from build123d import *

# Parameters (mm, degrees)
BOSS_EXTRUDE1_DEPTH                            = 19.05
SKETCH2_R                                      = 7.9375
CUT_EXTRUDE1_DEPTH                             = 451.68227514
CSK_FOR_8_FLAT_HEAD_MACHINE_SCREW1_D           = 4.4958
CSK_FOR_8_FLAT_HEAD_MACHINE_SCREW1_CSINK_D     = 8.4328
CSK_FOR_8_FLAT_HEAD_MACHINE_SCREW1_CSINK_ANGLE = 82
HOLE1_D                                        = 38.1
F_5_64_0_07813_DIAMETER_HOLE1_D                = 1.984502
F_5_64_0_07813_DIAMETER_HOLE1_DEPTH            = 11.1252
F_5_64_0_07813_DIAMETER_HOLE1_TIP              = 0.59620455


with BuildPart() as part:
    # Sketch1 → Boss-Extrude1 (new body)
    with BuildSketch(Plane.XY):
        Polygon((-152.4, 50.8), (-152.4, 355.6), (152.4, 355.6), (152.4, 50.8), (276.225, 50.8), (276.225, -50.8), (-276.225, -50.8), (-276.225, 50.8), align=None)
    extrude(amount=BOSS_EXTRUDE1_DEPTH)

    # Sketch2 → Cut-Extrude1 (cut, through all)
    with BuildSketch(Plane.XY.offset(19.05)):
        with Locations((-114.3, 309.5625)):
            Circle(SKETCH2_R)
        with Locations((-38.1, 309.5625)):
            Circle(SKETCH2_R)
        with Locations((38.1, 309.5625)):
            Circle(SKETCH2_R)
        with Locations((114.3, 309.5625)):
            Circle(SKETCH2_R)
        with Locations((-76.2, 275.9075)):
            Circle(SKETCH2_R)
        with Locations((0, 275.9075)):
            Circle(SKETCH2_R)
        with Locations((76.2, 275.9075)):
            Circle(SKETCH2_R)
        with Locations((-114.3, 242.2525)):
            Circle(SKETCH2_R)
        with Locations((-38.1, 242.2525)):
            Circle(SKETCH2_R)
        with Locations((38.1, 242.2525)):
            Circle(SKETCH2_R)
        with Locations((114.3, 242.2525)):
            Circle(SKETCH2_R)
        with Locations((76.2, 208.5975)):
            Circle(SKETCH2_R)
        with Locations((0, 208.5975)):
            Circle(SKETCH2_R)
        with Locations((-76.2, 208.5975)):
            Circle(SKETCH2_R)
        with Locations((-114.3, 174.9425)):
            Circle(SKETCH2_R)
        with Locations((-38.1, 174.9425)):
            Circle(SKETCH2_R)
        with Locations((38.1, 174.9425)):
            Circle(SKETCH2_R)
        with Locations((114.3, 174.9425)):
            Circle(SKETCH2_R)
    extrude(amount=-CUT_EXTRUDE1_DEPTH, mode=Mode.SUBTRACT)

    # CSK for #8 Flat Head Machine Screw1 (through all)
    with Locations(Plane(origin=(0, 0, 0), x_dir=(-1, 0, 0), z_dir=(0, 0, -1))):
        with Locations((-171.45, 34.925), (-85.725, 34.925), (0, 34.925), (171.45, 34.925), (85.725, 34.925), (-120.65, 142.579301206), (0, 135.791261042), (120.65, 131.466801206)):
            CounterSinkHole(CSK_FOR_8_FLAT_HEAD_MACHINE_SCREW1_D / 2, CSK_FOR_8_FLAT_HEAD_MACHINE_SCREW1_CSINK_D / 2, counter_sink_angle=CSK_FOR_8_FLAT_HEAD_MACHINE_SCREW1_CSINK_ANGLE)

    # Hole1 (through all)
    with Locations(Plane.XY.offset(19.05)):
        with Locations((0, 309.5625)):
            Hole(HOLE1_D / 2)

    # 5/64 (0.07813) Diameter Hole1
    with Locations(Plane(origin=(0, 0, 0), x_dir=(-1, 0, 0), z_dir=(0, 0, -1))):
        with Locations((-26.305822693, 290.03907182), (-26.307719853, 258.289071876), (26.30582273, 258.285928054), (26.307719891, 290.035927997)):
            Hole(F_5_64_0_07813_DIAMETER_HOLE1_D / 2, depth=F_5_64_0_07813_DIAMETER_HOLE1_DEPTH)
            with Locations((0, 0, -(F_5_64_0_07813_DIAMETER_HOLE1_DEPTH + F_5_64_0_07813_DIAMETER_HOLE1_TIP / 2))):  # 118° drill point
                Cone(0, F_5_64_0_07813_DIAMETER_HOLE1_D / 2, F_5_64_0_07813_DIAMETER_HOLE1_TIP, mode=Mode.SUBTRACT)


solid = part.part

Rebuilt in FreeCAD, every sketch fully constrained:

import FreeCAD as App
import Part
import Sketcher

V = App.Vector
Q = App.Units.Quantity

doc = App.newDocument("Part")
body = doc.addObject("PartDesign::Body", "Body")

# Sketch on XY plane
sketch1 = body.newObject("Sketcher::SketchObject", "Sketch")
sketch1.AttachmentSupport = (doc.getObject("XY_Plane"), [""])
sketch1.MapMode = "FlatFace"
sketch1.addGeometry([
    Part.LineSegment(V(-152, 356, 0), V(-152, 51, 0)),  # 0
    Part.LineSegment(V(-152, 51, 0), V(-276, 51, 0)),  # 1
    Part.LineSegment(V(-276, 51, 0), V(-276, -51, 0)),  # 2
    Part.LineSegment(V(-276, -51, 0), V(276, -51, 0)),  # 3
    Part.LineSegment(V(276, -51, 0), V(276, 51, 0)),  # 4
    Part.LineSegment(V(276, 51, 0), V(152, 51, 0)),  # 5
    Part.LineSegment(V(152, 51, 0), V(152, 356, 0)),  # 6
    Part.LineSegment(V(152, 356, 0), V(-152, 356, 0)),  # 7
], False)
sketch1.addConstraint([
    Sketcher.Constraint("Coincident", 0, 2, 1, 1),
    Sketcher.Constraint("Coincident", 1, 2, 2, 1),
    Sketcher.Constraint("Coincident", 2, 2, 3, 1),
    Sketcher.Constraint("Coincident", 3, 2, 4, 1),
    Sketcher.Constraint("Coincident", 4, 2, 5, 1),
    Sketcher.Constraint("Coincident", 5, 2, 6, 1),
    Sketcher.Constraint("Coincident", 6, 2, 7, 1),
    Sketcher.Constraint("Coincident", 7, 2, 0, 1),
    Sketcher.Constraint("Vertical", 0),
    Sketcher.Constraint("Horizontal", 1),
    Sketcher.Constraint("Vertical", 2),
    Sketcher.Constraint("Horizontal", 3),
    Sketcher.Constraint("Vertical", 4),
    Sketcher.Constraint("Horizontal", 5),
    Sketcher.Constraint("Vertical", 6),
    Sketcher.Constraint("Horizontal", 7),
    Sketcher.Constraint("Symmetric", 1, 2, 3, 2, -1, 1),
    Sketcher.Constraint("Symmetric", 0, 2, 5, 2, -2),
    Sketcher.Constraint("Equal", 7, 0),
    Sketcher.Constraint("DistanceX", 7, 2, 7, 1, Q("12 in")),
    Sketcher.Constraint("DistanceY", 2, 2, 2, 1, Q("4 in")),
    Sketcher.Constraint("DistanceX", 3, 1, 3, 2, Q("21.75 in")),
])
pad1 = body.newObject("PartDesign::Pad", "Pad")
pad1.Profile = sketch1
pad1.Length = Q("0.75 in")

# Sketch on XY plane
sketch2 = body.newObject("Sketcher::SketchObject", "Sketch001")
sketch2.AttachmentSupport = (doc.getObject("XY_Plane"), [""])
sketch2.MapMode = "FlatFace"
sketch2.AttachmentOffset = App.Placement(V(0, 0, 0.75 * 25.4), App.Rotation())
sketch2.addGeometry([
    Part.Circle(V(-114, 310, 0), V(0, 0, 1), 8),  # 0
    Part.Circle(V(-38, 310, 0), V(0, 0, 1), 8),  # 1
    Part.Circle(V(38, 310, 0), V(0, 0, 1), 8),  # 2
    Part.Circle(V(114, 310, 0), V(0, 0, 1), 8),  # 3
    Part.Circle(V(-76, 276, 0), V(0, 0, 1), 8),  # 4
    Part.Circle(V(0, 276, 0), V(0, 0, 1), 8),  # 5
    Part.Circle(V(76, 276, 0), V(0, 0, 1), 8),  # 6
    Part.Circle(V(-114, 242, 0), V(0, 0, 1), 8),  # 7
    Part.Circle(V(-38, 242, 0), V(0, 0, 1), 8),  # 8
    Part.Circle(V(38, 242, 0), V(0, 0, 1), 8),  # 9
    Part.Circle(V(114, 242, 0), V(0, 0, 1), 8),  # 10
    Part.Circle(V(76, 209, 0), V(0, 0, 1), 8),  # 11
    Part.Circle(V(0, 209, 0), V(0, 0, 1), 8),  # 12
    Part.Circle(V(-76, 209, 0), V(0, 0, 1), 8),  # 13
    Part.Circle(V(-114, 175, 0), V(0, 0, 1), 8),  # 14
    Part.Circle(V(-38, 175, 0), V(0, 0, 1), 8),  # 15
    Part.Circle(V(38, 175, 0), V(0, 0, 1), 8),  # 16
    Part.Circle(V(114, 175, 0), V(0, 0, 1), 8),  # 17
], False)
sketch2.addConstraint([
    Sketcher.Constraint("Equal", 0, 1),
    Sketcher.Constraint("Equal", 1, 2),
    Sketcher.Constraint("Equal", 2, 3),
    Sketcher.Constraint("Equal", 3, 4),
    Sketcher.Constraint("Equal", 4, 5),
    Sketcher.Constraint("Equal", 5, 6),
    Sketcher.Constraint("Equal", 6, 7),
    Sketcher.Constraint("Equal", 7, 8),
    Sketcher.Constraint("Equal", 8, 9),
    Sketcher.Constraint("Equal", 9, 10),
    Sketcher.Constraint("Equal", 10, 11),
    Sketcher.Constraint("Equal", 11, 12),
    Sketcher.Constraint("Equal", 12, 13),
    Sketcher.Constraint("Equal", 13, 14),
    Sketcher.Constraint("Equal", 14, 15),
    Sketcher.Constraint("Equal", 15, 16),
    Sketcher.Constraint("Equal", 16, 17),
    Sketcher.Constraint("Symmetric", 1, 3, 2, 3, -2),
    Sketcher.Constraint("Symmetric", 0, 3, 3, 3, -2),
    Sketcher.Constraint("Symmetric", 4, 3, 6, 3, -2),
    Sketcher.Constraint("Symmetric", 8, 3, 9, 3, -2),
    Sketcher.Constraint("Symmetric", 7, 3, 10, 3, -2),
    Sketcher.Constraint("Symmetric", 11, 3, 13, 3, -2),
    Sketcher.Constraint("Symmetric", 15, 3, 16, 3, -2),
    Sketcher.Constraint("Symmetric", 14, 3, 17, 3, -2),
    Sketcher.Constraint("PointOnObject", 5, 3, -2),
    Sketcher.Constraint("PointOnObject", 12, 3, -2),
    Sketcher.Constraint("Horizontal", 0, 3, 1, 3),
    Sketcher.Constraint("Horizontal", 4, 3, 5, 3),
    Sketcher.Constraint("Horizontal", 7, 3, 8, 3),
    Sketcher.Constraint("Horizontal", 11, 3, 12, 3),
    Sketcher.Constraint("Horizontal", 14, 3, 15, 3),
    Sketcher.Constraint("Vertical", 0, 3, 7, 3),
    Sketcher.Constraint("Vertical", 1, 3, 8, 3),
    Sketcher.Constraint("Vertical", 6, 3, 11, 3),
    Sketcher.Constraint("Vertical", 7, 3, 14, 3),
    Sketcher.Constraint("Vertical", 8, 3, 15, 3),
    Sketcher.Constraint("Diameter", 0, Q("0.625 in")),
    Sketcher.Constraint("DistanceX", 4, 3, -1, 1, Q("3 in")),
    Sketcher.Constraint("DistanceX", 0, 3, 1, 3, Q("3 in")),
    Sketcher.Constraint("DistanceX", 1, 3, 2, 3, Q("3 in")),
    Sketcher.Constraint("DistanceY", 7, 3, 0, 3, Q("2.65 in")),
    Sketcher.Constraint("DistanceY", 11, 3, 6, 3, Q("2.65 in")),
    Sketcher.Constraint("DistanceY", 14, 3, 7, 3, Q("2.65 in")),
    Sketcher.Constraint("DistanceY", -1, 1, 0, 3, Q("12.1875 in")),
    Sketcher.Constraint("DistanceY", 4, 3, 0, 3, Q("1.325 in")),
])
pocket1 = body.newObject("PartDesign::Pocket", "Pocket")
pocket1.Profile = sketch2
pocket1.Type = "ThroughAll"

# Sketch on XY plane
sketch3 = body.newObject("Sketcher::SketchObject", "Sketch002")
sketch3.AttachmentSupport = (doc.getObject("XY_Plane"), [""])
sketch3.MapMode = "FlatFace"
sketch3.addGeometry([
    Part.Circle(V(171.4, 34.9, 0), V(0, 0, 1), 2.2),  # 0
    Part.Circle(V(85.7, 34.9, 0), V(0, 0, 1), 2.2),  # 1
    Part.Circle(V(0, 34.9, 0), V(0, 0, 1), 2.2),  # 2
    Part.Circle(V(-171.4, 34.9, 0), V(0, 0, 1), 2.2),  # 3
    Part.Circle(V(-85.7, 34.9, 0), V(0, 0, 1), 2.2),  # 4
    Part.Circle(V(120.7, 142.6, 0), V(0, 0, 1), 2.2),  # 5
    Part.Circle(V(0, 135.8, 0), V(0, 0, 1), 2.2),  # 6
    Part.Circle(V(-120.7, 131.5, 0), V(0, 0, 1), 2.2),  # 7
], False)
sketch3.addConstraint([
    Sketcher.Constraint("Equal", 0, 1),
    Sketcher.Constraint("Equal", 1, 2),
    Sketcher.Constraint("Equal", 2, 3),
    Sketcher.Constraint("Equal", 3, 4),
    Sketcher.Constraint("Equal", 4, 5),
    Sketcher.Constraint("Equal", 5, 6),
    Sketcher.Constraint("Equal", 6, 7),
    Sketcher.Constraint("Symmetric", 0, 3, 3, 3, -2),
    Sketcher.Constraint("Symmetric", 1, 3, 4, 3, -2),
    Sketcher.Constraint("PointOnObject", 2, 3, -2),
    Sketcher.Constraint("PointOnObject", 6, 3, -2),
    Sketcher.Constraint("Horizontal", 0, 3, 1, 3),
    Sketcher.Constraint("Horizontal", 1, 3, 2, 3),
    Sketcher.Constraint("Diameter", 0, Q("0.177 in")),
    Sketcher.Constraint("DistanceX", 5, 3, 0, 3, Q("2 in")),
    Sketcher.Constraint("DistanceX", 3, 3, 7, 3, Q("2 in")),
    Sketcher.Constraint("DistanceX", 3, 3, 0, 3, Q("13.5 in")),
    Sketcher.Constraint("DistanceX", 4, 3, 1, 3, Q("6.75 in")),
    Sketcher.Constraint("DistanceY", -1, 1, 0, 3, Q("1.375 in")),
    Sketcher.Constraint("DistanceY", -1, 1, 5, 3, 142.579301),
    Sketcher.Constraint("DistanceY", -1, 1, 7, 3, 131.466801),
    Sketcher.Constraint("DistanceY", -1, 1, 6, 3, 135.791261),
])
doc.recompute()
hole = body.newObject("PartDesign::Hole", "Hole")
hole.Profile = sketch3
hole.ThreadType = "None"
hole.Diameter = Q("0.177 in")
hole.DepthType = "ThroughAll"
hole.HoleCutType = "Countersink"
hole.HoleCutDiameter = Q("0.332 in")
hole.HoleCutCountersinkAngle = 82
hole.Reversed = True

# Sketch on XY plane
sketch4 = body.newObject("Sketcher::SketchObject", "Sketch003")
sketch4.AttachmentSupport = (doc.getObject("XY_Plane"), [""])
sketch4.MapMode = "FlatFace"
sketch4.AttachmentOffset = App.Placement(V(0, 0, 0.75 * 25.4), App.Rotation())
sketch4.addGeometry(Part.Circle(V(0, 310, 0), V(0, 0, 1), 19), False)
sketch4.addConstraint([
    Sketcher.Constraint("PointOnObject", 0, 3, -2),
    Sketcher.Constraint("Diameter", 0, Q("1.5 in")),
    Sketcher.Constraint("DistanceY", -1, 1, 0, 3, Q("12.1875 in")),
])
doc.recompute()
hole2 = body.newObject("PartDesign::Hole", "Hole001")
hole2.Profile = sketch4
hole2.ThreadType = "None"
hole2.Diameter = Q("1.5 in")
hole2.DepthType = "ThroughAll"

# Sketch on XY plane
sketch5 = body.newObject("Sketcher::SketchObject", "Sketch004")
sketch5.AttachmentSupport = (doc.getObject("XY_Plane"), [""])
sketch5.MapMode = "FlatFace"
sketch5.addGeometry([
    Part.Circle(V(26.3, 290, 0), V(0, 0, 1), 1),
    Part.Circle(V(26.3, 258.3, 0), V(0, 0, 1), 1),
    Part.Circle(V(-26.3, 258.3, 0), V(0, 0, 1), 1),
    Part.Circle(V(-26.3, 290, 0), V(0, 0, 1), 1),
], False)
sketch5.addConstraint([
    Sketcher.Constraint("Equal", 0, 1),
    Sketcher.Constraint("Equal", 1, 2),
    Sketcher.Constraint("Equal", 2, 3),
    Sketcher.Constraint("DistanceY", 1, 3, 0, 3, Q("1.25 in")),
    Sketcher.Constraint("DistanceY", 2, 3, 3, 3, Q("1.25 in")),
    Sketcher.Constraint("Diameter", 0, 1.984502),
    Sketcher.Constraint("DistanceY", -1, 1, 0, 3, 290.039072),
    Sketcher.Constraint("DistanceX", -1, 1, 1, 3, 26.30772),
    Sketcher.Constraint("DistanceY", -1, 1, 2, 3, 258.285928),
    Sketcher.Constraint("DistanceX", 3, 3, -1, 1, 26.30772),
    Sketcher.Constraint("DistanceX", -1, 1, 0, 3, 26.305823),
    Sketcher.Constraint("DistanceX", 2, 3, -1, 1, 26.305823),
])
doc.recompute()
hole3 = body.newObject("PartDesign::Hole", "Hole002")
hole3.Profile = sketch5
hole3.ThreadType = "None"
hole3.Diameter = 1.984502
hole3.DepthType = "Dimension"
hole3.Depth = Q("0.438 in")
hole3.DrillPoint = "Angled"
hole3.DrillPointAngle = 118
hole3.Reversed = True

doc.recompute()
